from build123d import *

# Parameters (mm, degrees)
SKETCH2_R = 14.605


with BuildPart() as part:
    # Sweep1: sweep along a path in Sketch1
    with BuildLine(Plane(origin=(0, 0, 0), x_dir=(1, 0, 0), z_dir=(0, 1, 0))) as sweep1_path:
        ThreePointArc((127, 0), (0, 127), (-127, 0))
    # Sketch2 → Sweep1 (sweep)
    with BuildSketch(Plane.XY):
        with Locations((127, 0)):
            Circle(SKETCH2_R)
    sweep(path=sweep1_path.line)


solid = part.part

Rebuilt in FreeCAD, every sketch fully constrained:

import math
import FreeCAD as App
import Part
import Sketcher

V = App.Vector
Q = App.Units.Quantity

doc = App.newDocument("Part")
body = doc.addObject("PartDesign::Body", "Body")

sketch1 = body.newObject("Sketcher::SketchObject", "Sketch")
sketch1.AttachmentSupport = (doc.getObject("XY_Plane"), [""])
sketch1.MapMode = "FlatFace"
sketch1.addGeometry(Part.Circle(V(127, 0, 0), V(0, 0, 1), 15), False)
sketch1.addConstraint(Sketcher.Constraint("PointOnObject", 0, 3, -1))
sketch1.addConstraint(Sketcher.Constraint("Diameter", 0, Q("1.15 in")))
sketch1.addConstraint(Sketcher.Constraint("DistanceX", -1, 1, 0, 3, Q("5 in")))

sketch2 = body.newObject("Sketcher::SketchObject", "Sketch001")
sketch2.AttachmentSupport = (doc.getObject("XZ_Plane"), [""])
sketch2.MapMode = "FlatFace"
sketch2.addGeometry(Part.ArcOfCircle(Part.Circle(V(0, 0, 0), V(0, 0, 1), 127), math.radians(180), math.radians(360)), False)
sketch2.addConstraint(Sketcher.Constraint("Coincident", 0, 3, -1, 1))
sketch2.addConstraint(Sketcher.Constraint("PointOnObject", 0, 1, -1))
sketch2.addConstraint(Sketcher.Constraint("PointOnObject", 0, 2, -1))
sketch2.addConstraint(Sketcher.Constraint("Radius", 0, Q("5 in")))
doc.recompute()

additivepipe = body.newObject("PartDesign::AdditivePipe", "AdditivePipe")
additivepipe.Profile = sketch1
additivepipe.Spine = (sketch2, ["Edge1"])

doc.recompute()
